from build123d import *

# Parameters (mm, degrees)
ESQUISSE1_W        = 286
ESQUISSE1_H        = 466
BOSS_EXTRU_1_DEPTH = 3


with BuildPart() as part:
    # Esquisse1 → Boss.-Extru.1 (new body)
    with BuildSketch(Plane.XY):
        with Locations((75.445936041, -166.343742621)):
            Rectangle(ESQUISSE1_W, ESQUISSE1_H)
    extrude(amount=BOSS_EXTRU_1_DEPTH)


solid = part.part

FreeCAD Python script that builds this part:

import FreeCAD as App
import Part
import Sketcher

V = App.Vector
Q = App.Units.Quantity

doc = App.newDocument("Part")
body = doc.addObject("PartDesign::Body", "Body")

sketch1 = doc.addObject("Sketcher::SketchObject", "Sketch")
body.addObject(sketch1)
sketch1.AttachmentSupport = (doc.XY_Plane, [""])
sketch1.MapMode = "FlatFace"
sketch1.addGeometry(Part.LineSegment(V(-68, 67, 0), V(-68, -399, 0)), False)
sketch1.addGeometry(Part.LineSegment(V(-68, -399, 0), V(218, -399, 0)), False)
sketch1.addGeometry(Part.LineSegment(V(218, -399, 0), V(218, 67, 0)), False)
sketch1.addGeometry(Part.LineSegment(V(218, 67, 0), V(-68, 67, 0)), False)
sketch1.addConstraint(Sketcher.Constraint("Coincident", 0, 2, 1, 1))
sketch1.addConstraint(Sketcher.Constraint("Coincident", 1, 2, 2, 1))
sketch1.addConstraint(Sketcher.Constraint("Coincident", 2, 2, 3, 1))
sketch1.addConstraint(Sketcher.Constraint("Coincident", 3, 2, 0, 1))
sketch1.addConstraint(Sketcher.Constraint("Vertical", 0))
sketch1.addConstraint(Sketcher.Constraint("Horizontal", 1))
sketch1.addConstraint(Sketcher.Constraint("Vertical", 2))
sketch1.addConstraint(Sketcher.Constraint("Horizontal", 3))
sketch1.addConstraint(Sketcher.Constraint("DistanceX", 1, 1, 1, 2, Q("286 mm")))
sketch1.addConstraint(Sketcher.Constraint("DistanceY", 0, 2, 0, 1, Q("466 mm")))
sketch1.addConstraint(Sketcher.Constraint("DistanceX", 0, 2, -1, 1, Q("67.554064 mm")))
sketch1.addConstraint(Sketcher.Constraint("DistanceY", 0, 2, -1, 1, Q("399.343743 mm")))
pad1 = doc.addObject("PartDesign::Pad", "Pad")
body.addObject(pad1)
pad1.Profile = sketch1
pad1.Length = 3

doc.recompute()
